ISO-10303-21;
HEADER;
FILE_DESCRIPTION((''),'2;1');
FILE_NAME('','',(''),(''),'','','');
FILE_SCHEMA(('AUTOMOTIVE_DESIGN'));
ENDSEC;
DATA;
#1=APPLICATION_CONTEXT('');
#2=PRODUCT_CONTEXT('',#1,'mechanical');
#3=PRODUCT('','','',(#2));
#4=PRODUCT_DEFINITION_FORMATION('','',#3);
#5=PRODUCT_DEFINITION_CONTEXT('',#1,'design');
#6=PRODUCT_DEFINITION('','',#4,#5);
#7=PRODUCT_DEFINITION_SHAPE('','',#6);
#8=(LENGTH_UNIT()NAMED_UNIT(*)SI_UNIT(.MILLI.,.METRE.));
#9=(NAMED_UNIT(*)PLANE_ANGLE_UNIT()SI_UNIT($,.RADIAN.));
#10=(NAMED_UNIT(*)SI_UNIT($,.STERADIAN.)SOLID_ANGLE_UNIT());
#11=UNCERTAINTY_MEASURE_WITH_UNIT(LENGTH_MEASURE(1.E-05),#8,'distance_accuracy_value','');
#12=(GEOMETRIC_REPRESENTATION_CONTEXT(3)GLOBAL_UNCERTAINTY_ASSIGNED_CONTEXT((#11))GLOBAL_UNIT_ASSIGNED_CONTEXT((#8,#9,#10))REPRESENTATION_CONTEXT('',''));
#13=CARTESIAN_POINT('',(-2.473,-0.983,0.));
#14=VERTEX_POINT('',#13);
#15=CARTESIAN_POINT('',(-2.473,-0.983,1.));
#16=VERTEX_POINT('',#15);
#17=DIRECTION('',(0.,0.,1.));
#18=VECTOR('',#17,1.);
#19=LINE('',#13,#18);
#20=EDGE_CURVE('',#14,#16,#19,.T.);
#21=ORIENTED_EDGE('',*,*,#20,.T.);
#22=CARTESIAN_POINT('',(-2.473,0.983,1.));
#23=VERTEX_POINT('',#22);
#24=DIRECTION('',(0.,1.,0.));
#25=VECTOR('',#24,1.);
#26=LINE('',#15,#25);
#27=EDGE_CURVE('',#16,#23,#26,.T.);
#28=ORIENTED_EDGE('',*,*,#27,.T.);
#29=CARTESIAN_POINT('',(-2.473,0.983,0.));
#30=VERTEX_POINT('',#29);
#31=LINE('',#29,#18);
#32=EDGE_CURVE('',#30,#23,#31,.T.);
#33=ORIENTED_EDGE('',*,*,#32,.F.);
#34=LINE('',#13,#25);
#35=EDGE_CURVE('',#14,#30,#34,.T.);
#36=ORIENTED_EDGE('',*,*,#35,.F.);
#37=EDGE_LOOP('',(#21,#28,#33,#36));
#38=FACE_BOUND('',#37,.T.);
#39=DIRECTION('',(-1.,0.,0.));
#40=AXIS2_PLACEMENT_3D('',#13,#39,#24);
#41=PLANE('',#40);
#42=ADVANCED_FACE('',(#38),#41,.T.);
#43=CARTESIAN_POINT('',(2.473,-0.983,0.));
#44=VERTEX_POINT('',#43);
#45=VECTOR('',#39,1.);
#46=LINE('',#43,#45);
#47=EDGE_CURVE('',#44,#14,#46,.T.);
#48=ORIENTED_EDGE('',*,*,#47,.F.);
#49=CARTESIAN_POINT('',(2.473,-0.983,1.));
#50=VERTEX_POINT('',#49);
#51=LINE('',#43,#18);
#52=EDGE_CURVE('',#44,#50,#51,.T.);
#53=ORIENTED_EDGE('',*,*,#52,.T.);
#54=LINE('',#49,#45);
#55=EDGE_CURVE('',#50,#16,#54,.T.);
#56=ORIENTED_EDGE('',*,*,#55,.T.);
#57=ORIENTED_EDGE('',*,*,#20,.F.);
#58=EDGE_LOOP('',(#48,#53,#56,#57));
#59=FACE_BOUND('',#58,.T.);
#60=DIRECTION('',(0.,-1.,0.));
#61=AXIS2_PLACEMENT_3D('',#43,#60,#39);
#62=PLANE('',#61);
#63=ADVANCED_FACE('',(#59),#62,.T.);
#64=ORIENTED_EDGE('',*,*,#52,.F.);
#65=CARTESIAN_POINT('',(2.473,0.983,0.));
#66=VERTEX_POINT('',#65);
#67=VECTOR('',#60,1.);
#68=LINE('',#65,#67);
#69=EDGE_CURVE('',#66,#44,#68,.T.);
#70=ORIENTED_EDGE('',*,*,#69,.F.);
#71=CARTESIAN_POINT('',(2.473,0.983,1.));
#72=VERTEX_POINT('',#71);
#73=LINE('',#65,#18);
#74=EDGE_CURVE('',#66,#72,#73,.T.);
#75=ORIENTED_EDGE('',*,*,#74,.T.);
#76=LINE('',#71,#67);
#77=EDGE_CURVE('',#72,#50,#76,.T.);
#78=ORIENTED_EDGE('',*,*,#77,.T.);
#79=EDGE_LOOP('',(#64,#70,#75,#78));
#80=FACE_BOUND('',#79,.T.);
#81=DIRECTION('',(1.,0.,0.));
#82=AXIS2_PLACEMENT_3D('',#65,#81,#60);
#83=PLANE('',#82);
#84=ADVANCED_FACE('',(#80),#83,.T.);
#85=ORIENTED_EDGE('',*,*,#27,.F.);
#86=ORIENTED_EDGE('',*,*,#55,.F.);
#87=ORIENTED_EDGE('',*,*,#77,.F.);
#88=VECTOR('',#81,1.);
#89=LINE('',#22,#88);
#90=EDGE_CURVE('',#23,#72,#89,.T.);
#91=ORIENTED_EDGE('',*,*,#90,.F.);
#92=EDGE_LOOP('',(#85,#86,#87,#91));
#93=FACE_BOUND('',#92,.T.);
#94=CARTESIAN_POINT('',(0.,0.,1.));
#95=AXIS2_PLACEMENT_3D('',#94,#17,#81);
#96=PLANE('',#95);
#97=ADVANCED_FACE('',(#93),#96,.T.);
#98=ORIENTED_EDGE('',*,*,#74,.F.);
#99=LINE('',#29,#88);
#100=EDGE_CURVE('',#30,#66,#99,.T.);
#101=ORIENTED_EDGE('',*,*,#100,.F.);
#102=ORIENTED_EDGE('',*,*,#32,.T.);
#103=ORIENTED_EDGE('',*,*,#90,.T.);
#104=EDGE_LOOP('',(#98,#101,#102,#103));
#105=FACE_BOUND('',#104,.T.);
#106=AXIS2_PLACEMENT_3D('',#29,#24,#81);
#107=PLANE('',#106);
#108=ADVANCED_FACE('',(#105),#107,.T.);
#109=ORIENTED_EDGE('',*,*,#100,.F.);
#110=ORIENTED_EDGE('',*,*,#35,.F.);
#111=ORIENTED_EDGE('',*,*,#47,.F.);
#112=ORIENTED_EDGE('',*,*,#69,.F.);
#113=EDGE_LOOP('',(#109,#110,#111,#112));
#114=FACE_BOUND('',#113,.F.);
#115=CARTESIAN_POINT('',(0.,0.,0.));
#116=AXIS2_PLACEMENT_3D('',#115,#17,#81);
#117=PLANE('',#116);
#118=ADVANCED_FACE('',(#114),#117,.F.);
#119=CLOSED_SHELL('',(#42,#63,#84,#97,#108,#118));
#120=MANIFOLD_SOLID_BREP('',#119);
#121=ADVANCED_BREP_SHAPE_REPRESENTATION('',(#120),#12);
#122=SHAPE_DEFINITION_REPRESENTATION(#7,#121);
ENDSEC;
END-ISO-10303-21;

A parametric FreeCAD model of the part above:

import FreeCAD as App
import Part
import Sketcher

V = App.Vector


def add_polygon(sketch, points):
    """Adds a closed chain of lines whose ends are joined by coincident constraints."""
    first, n = sketch.GeometryCount, len(points)
    for a, b in zip(points, points[1:] + points[:1]):
        sketch.addGeometry(Part.LineSegment(App.Vector(*a, 0), App.Vector(*b, 0)), False)
    for i in range(n):
        sketch.addConstraint(Sketcher.Constraint("Coincident", first + i, 2, first + (i + 1) % n, 1))

doc = App.newDocument("Part")
body = doc.addObject("PartDesign::Body", "Body")

sketch1 = doc.addObject("Sketcher::SketchObject", "Sketch")
body.addObject(sketch1)
sketch1.AttachmentSupport = (doc.XY_Plane, [""])
sketch1.MapMode = "FlatFace"
add_polygon(sketch1, [(2.473, 0.983), (-2.473, 0.983), (-2.473, -0.983), (2.473, -0.983)])
sketch1.addConstraint([
    Sketcher.Constraint("Horizontal", 0),
    Sketcher.Constraint("Vertical", 1),
    Sketcher.Constraint("Horizontal", 2),
    Sketcher.Constraint("Vertical", 3),
    Sketcher.Constraint("Symmetric", 0, 2, 2, 2, -1, 1),
    Sketcher.Constraint("DistanceX", 0, 2, 0, 1, 4.946),
    Sketcher.Constraint("DistanceY", 1, 2, 1, 1, 1.966),
])
pad1 = doc.addObject("PartDesign::Pad", "Pad")
body.addObject(pad1)
pad1.Profile = sketch1
pad1.Length = 1

doc.recompute()
